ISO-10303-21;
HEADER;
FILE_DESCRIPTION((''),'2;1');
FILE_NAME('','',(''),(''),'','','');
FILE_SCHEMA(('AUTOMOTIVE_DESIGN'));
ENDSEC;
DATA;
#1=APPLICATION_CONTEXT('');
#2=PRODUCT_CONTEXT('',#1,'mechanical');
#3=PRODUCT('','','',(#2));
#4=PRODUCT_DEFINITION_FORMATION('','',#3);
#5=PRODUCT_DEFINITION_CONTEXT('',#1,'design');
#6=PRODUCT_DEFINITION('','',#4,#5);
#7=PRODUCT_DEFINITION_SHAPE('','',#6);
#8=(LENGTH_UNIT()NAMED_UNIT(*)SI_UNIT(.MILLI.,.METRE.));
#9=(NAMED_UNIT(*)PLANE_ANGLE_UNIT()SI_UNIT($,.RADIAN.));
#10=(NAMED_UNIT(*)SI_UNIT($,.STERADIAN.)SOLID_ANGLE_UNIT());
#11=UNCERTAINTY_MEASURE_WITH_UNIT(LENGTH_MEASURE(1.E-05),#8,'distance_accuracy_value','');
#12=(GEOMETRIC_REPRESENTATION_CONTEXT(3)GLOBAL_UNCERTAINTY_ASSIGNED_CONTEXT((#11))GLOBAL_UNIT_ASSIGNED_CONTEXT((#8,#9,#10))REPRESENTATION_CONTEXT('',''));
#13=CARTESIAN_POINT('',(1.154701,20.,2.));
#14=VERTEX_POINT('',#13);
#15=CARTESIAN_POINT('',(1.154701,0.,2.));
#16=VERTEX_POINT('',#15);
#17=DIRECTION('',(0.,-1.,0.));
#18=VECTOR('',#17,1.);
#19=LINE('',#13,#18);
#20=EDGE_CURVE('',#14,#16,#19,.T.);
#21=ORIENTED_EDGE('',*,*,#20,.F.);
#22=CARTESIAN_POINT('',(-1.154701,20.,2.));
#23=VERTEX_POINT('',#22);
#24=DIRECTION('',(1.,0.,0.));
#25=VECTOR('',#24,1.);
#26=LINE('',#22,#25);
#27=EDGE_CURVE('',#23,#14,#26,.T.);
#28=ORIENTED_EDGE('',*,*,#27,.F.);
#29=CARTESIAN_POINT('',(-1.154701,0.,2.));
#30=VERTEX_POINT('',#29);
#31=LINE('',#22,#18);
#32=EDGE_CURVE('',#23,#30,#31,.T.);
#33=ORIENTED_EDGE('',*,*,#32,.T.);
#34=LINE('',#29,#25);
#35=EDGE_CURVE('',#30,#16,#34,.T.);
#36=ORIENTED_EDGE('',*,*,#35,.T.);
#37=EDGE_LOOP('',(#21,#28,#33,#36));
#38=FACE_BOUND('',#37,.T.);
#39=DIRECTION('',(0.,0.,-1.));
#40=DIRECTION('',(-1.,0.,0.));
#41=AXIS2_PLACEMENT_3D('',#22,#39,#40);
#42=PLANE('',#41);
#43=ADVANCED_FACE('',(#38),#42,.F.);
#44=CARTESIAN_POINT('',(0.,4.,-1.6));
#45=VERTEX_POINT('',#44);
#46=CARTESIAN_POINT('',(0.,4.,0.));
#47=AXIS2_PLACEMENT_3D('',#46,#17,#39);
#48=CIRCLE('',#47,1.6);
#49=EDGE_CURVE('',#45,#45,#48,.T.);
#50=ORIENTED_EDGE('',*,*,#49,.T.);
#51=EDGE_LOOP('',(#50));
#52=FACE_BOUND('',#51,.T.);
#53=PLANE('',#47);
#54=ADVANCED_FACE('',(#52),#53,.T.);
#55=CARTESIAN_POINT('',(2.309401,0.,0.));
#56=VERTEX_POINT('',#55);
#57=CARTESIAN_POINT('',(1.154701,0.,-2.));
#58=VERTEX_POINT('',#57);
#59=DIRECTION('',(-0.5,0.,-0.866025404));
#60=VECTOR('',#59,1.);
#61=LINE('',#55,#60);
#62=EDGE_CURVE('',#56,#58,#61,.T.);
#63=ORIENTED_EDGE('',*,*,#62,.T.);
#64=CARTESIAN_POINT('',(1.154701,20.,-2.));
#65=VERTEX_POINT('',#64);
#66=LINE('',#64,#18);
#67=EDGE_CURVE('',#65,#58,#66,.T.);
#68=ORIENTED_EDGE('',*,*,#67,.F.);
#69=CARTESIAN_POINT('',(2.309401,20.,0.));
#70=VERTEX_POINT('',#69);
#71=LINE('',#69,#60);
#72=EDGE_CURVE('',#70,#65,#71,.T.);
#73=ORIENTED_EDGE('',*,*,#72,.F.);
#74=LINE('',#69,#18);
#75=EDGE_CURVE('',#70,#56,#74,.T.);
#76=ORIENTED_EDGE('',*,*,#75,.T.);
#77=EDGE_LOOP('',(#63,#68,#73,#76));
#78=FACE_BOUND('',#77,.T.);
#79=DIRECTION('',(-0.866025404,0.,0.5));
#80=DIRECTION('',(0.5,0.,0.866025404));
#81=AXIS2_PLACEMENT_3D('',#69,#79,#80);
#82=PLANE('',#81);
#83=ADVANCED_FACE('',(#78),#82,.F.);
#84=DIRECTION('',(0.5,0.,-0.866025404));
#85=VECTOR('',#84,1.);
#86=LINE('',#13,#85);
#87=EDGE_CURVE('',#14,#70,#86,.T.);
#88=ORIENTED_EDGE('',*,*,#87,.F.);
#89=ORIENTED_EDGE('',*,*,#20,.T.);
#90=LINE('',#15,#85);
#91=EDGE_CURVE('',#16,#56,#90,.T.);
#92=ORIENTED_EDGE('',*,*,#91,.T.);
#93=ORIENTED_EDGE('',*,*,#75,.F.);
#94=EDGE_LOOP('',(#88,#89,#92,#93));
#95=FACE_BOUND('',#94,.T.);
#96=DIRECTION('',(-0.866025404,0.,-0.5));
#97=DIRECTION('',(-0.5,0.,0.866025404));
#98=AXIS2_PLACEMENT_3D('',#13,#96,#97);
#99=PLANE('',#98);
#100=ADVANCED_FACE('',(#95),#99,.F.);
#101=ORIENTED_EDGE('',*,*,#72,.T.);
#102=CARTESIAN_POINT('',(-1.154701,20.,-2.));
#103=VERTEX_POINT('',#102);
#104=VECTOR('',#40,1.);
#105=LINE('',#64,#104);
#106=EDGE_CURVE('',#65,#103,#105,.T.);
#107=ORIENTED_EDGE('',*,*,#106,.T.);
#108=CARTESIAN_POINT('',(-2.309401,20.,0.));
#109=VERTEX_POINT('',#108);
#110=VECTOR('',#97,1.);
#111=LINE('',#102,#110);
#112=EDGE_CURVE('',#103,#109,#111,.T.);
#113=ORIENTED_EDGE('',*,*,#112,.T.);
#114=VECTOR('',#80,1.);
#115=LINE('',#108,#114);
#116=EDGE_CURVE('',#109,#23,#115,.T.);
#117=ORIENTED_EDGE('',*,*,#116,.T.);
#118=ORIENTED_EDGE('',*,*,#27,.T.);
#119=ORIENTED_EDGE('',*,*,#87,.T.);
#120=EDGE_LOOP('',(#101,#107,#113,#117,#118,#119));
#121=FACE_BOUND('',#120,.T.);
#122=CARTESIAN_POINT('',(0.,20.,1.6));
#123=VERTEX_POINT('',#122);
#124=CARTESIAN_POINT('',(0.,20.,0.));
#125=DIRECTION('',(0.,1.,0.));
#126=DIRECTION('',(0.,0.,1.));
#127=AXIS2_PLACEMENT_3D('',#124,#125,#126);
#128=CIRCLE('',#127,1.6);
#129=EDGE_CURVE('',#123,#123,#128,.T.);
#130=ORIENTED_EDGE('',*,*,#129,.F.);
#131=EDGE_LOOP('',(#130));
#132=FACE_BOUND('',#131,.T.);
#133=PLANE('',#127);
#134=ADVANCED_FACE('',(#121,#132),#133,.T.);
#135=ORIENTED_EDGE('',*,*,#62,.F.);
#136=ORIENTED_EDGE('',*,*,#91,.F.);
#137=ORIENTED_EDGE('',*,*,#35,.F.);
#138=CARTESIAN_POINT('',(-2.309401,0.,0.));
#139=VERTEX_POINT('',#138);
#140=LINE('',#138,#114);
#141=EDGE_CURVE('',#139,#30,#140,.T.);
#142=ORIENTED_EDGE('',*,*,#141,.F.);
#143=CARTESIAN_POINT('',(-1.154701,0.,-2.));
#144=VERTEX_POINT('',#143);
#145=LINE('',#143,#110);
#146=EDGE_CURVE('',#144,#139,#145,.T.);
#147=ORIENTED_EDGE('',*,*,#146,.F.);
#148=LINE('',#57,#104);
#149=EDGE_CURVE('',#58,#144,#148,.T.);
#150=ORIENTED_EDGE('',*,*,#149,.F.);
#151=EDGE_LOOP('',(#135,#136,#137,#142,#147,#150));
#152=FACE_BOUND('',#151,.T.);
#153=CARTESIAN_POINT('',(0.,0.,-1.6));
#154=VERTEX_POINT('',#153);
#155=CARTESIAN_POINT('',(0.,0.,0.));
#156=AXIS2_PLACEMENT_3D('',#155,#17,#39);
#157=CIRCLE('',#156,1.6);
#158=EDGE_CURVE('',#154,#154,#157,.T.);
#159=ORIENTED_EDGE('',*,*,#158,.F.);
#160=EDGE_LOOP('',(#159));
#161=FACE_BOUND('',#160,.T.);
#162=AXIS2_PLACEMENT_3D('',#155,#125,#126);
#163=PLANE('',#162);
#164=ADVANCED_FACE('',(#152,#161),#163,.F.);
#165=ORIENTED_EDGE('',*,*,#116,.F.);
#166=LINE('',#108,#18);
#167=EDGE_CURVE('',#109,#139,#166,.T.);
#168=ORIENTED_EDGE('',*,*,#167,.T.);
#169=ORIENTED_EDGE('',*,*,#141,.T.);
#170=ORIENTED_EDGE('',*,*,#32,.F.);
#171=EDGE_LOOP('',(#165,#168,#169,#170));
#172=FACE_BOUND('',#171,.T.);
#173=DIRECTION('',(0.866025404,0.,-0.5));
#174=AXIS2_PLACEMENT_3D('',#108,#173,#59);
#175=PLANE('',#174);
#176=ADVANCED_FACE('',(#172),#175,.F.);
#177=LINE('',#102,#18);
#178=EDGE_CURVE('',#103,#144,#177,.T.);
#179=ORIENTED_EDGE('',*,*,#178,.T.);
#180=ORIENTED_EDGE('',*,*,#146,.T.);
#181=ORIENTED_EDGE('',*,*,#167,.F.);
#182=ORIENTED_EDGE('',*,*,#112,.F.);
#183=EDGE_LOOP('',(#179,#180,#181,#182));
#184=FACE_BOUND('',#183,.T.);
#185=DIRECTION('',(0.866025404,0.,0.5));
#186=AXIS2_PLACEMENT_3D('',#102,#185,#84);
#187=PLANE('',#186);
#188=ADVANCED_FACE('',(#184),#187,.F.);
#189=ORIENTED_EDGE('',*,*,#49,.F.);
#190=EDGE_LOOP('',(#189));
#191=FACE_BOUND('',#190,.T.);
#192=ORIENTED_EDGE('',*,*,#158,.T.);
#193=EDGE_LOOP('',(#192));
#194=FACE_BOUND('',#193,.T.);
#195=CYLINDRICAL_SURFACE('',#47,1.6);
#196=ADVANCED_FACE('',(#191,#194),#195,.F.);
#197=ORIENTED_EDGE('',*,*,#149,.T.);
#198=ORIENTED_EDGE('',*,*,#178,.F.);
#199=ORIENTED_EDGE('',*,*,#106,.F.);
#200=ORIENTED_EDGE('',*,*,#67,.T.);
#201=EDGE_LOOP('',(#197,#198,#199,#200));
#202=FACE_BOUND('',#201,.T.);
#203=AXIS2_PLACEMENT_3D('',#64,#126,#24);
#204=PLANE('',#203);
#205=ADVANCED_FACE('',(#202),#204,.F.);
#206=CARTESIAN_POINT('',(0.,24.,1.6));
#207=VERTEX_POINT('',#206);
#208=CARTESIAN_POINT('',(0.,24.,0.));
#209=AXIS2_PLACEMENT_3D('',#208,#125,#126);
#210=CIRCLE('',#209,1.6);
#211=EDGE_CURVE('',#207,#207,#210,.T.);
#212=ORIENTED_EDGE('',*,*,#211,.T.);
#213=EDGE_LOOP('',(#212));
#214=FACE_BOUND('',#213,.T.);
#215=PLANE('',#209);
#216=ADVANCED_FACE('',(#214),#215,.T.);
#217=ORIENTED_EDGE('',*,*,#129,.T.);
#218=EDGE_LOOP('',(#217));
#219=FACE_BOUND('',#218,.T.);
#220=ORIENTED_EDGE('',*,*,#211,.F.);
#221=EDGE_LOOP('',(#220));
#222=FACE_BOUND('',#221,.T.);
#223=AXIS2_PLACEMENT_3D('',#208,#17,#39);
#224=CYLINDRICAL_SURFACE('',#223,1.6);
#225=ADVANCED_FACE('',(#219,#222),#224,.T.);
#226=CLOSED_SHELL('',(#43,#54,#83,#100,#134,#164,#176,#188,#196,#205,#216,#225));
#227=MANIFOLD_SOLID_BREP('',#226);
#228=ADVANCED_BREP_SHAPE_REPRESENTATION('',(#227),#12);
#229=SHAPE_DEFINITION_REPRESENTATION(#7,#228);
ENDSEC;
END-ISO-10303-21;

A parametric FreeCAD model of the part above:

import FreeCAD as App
import Part
import Sketcher
Q = App.Units.Quantity

doc = App.newDocument("Part")
body = doc.addObject("PartDesign::Body", "Body")

sketch1 = doc.addObject("Sketcher::SketchObject", "Sketch")
body.addObject(sketch1)
sketch1.AttachmentSupport = (doc.XZ_Plane, [""])
sketch1.MapMode = "FlatFace"
sketch1.addGeometry([
    Part.LineSegment(App.Vector(1.2, 2, 0), App.Vector(2.3, 0, 0)),
    Part.LineSegment(App.Vector(2.3, 0, 0), App.Vector(1.2, -2, 0)),
    Part.LineSegment(App.Vector(1.2, -2, 0), App.Vector(-1.2, -2, 0)),
    Part.LineSegment(App.Vector(-1.2, -2, 0), App.Vector(-2.3, 0, 0)),
    Part.LineSegment(App.Vector(-2.3, 0, 0), App.Vector(-1.2, 2, 0)),
    Part.LineSegment(App.Vector(-1.2, 2, 0), App.Vector(1.2, 2, 0)),
], False)
sketch1.addConstraint([
    Sketcher.Constraint("Coincident", 0, 2, 1, 1),
    Sketcher.Constraint("Coincident", 1, 2, 2, 1),
    Sketcher.Constraint("Coincident", 2, 2, 3, 1),
    Sketcher.Constraint("Coincident", 3, 2, 4, 1),
    Sketcher.Constraint("Coincident", 4, 2, 5, 1),
    Sketcher.Constraint("Coincident", 5, 2, 0, 1),
    Sketcher.Constraint("Horizontal", 2),
    Sketcher.Constraint("Horizontal", 5),
    Sketcher.Constraint("Symmetric", 0, 2, 3, 2, -1, 1),
    Sketcher.Constraint("Symmetric", 1, 2, 4, 2, -1, 1),
    Sketcher.Constraint("PointOnObject", 0, 2, -1),
    Sketcher.Constraint("Parallel", 0, 3),
    Sketcher.Constraint("Vertical", 2, 2, 4, 2),
    Sketcher.Constraint("Angle", 0, Q("-60 deg")),
    Sketcher.Constraint("DistanceY", 1, 2, -1, 1, Q("2 mm")),
    Sketcher.Constraint("DistanceX", 2, 2, 2, 1, Q("2.309401 mm")),
])
pad1 = doc.addObject("PartDesign::Pad", "Pad")
body.addObject(pad1)
pad1.Profile = sketch1
pad1.Length = 20
pad1.Reversed = True

sketch2 = doc.addObject("Sketcher::SketchObject", "Sketch001")
body.addObject(sketch2)
sketch2.AttachmentSupport = (doc.XZ_Plane, [""])
sketch2.MapMode = "FlatFace"
sketch2.AttachmentOffset = App.Placement(App.Vector(0, 0, -20), App.Rotation())
sketch2.addGeometry(Part.Circle(App.Vector(0, 0, 0), App.Vector(0, 0, 1), 1.6), False)
sketch2.addConstraint([
    Sketcher.Constraint("Coincident", 0, 3, -1, 1),
    Sketcher.Constraint("Diameter", 0, Q("3.2 mm")),
])
pad2 = doc.addObject("PartDesign::Pad", "Pad001")
body.addObject(pad2)
pad2.Profile = sketch2
pad2.Length = 4
pad2.Reversed = True

sketch3 = doc.addObject("Sketcher::SketchObject", "Sketch002")
body.addObject(sketch3)
sketch3.AttachmentSupport = (doc.XZ_Plane, [""])
sketch3.MapMode = "FlatFace"
sketch3.addGeometry(Part.Circle(App.Vector(0, 0, 0), App.Vector(0, 0, 1), 1.6), False)
sketch3.addConstraint([
    Sketcher.Constraint("Coincident", 0, 3, -1, 1),
    Sketcher.Constraint("Diameter", 0, Q("3.2 mm")),
])
pocket1 = doc.addObject("PartDesign::Pocket", "Pocket")
body.addObject(pocket1)
pocket1.Profile = sketch3
pocket1.Length = 4

doc.recompute()
